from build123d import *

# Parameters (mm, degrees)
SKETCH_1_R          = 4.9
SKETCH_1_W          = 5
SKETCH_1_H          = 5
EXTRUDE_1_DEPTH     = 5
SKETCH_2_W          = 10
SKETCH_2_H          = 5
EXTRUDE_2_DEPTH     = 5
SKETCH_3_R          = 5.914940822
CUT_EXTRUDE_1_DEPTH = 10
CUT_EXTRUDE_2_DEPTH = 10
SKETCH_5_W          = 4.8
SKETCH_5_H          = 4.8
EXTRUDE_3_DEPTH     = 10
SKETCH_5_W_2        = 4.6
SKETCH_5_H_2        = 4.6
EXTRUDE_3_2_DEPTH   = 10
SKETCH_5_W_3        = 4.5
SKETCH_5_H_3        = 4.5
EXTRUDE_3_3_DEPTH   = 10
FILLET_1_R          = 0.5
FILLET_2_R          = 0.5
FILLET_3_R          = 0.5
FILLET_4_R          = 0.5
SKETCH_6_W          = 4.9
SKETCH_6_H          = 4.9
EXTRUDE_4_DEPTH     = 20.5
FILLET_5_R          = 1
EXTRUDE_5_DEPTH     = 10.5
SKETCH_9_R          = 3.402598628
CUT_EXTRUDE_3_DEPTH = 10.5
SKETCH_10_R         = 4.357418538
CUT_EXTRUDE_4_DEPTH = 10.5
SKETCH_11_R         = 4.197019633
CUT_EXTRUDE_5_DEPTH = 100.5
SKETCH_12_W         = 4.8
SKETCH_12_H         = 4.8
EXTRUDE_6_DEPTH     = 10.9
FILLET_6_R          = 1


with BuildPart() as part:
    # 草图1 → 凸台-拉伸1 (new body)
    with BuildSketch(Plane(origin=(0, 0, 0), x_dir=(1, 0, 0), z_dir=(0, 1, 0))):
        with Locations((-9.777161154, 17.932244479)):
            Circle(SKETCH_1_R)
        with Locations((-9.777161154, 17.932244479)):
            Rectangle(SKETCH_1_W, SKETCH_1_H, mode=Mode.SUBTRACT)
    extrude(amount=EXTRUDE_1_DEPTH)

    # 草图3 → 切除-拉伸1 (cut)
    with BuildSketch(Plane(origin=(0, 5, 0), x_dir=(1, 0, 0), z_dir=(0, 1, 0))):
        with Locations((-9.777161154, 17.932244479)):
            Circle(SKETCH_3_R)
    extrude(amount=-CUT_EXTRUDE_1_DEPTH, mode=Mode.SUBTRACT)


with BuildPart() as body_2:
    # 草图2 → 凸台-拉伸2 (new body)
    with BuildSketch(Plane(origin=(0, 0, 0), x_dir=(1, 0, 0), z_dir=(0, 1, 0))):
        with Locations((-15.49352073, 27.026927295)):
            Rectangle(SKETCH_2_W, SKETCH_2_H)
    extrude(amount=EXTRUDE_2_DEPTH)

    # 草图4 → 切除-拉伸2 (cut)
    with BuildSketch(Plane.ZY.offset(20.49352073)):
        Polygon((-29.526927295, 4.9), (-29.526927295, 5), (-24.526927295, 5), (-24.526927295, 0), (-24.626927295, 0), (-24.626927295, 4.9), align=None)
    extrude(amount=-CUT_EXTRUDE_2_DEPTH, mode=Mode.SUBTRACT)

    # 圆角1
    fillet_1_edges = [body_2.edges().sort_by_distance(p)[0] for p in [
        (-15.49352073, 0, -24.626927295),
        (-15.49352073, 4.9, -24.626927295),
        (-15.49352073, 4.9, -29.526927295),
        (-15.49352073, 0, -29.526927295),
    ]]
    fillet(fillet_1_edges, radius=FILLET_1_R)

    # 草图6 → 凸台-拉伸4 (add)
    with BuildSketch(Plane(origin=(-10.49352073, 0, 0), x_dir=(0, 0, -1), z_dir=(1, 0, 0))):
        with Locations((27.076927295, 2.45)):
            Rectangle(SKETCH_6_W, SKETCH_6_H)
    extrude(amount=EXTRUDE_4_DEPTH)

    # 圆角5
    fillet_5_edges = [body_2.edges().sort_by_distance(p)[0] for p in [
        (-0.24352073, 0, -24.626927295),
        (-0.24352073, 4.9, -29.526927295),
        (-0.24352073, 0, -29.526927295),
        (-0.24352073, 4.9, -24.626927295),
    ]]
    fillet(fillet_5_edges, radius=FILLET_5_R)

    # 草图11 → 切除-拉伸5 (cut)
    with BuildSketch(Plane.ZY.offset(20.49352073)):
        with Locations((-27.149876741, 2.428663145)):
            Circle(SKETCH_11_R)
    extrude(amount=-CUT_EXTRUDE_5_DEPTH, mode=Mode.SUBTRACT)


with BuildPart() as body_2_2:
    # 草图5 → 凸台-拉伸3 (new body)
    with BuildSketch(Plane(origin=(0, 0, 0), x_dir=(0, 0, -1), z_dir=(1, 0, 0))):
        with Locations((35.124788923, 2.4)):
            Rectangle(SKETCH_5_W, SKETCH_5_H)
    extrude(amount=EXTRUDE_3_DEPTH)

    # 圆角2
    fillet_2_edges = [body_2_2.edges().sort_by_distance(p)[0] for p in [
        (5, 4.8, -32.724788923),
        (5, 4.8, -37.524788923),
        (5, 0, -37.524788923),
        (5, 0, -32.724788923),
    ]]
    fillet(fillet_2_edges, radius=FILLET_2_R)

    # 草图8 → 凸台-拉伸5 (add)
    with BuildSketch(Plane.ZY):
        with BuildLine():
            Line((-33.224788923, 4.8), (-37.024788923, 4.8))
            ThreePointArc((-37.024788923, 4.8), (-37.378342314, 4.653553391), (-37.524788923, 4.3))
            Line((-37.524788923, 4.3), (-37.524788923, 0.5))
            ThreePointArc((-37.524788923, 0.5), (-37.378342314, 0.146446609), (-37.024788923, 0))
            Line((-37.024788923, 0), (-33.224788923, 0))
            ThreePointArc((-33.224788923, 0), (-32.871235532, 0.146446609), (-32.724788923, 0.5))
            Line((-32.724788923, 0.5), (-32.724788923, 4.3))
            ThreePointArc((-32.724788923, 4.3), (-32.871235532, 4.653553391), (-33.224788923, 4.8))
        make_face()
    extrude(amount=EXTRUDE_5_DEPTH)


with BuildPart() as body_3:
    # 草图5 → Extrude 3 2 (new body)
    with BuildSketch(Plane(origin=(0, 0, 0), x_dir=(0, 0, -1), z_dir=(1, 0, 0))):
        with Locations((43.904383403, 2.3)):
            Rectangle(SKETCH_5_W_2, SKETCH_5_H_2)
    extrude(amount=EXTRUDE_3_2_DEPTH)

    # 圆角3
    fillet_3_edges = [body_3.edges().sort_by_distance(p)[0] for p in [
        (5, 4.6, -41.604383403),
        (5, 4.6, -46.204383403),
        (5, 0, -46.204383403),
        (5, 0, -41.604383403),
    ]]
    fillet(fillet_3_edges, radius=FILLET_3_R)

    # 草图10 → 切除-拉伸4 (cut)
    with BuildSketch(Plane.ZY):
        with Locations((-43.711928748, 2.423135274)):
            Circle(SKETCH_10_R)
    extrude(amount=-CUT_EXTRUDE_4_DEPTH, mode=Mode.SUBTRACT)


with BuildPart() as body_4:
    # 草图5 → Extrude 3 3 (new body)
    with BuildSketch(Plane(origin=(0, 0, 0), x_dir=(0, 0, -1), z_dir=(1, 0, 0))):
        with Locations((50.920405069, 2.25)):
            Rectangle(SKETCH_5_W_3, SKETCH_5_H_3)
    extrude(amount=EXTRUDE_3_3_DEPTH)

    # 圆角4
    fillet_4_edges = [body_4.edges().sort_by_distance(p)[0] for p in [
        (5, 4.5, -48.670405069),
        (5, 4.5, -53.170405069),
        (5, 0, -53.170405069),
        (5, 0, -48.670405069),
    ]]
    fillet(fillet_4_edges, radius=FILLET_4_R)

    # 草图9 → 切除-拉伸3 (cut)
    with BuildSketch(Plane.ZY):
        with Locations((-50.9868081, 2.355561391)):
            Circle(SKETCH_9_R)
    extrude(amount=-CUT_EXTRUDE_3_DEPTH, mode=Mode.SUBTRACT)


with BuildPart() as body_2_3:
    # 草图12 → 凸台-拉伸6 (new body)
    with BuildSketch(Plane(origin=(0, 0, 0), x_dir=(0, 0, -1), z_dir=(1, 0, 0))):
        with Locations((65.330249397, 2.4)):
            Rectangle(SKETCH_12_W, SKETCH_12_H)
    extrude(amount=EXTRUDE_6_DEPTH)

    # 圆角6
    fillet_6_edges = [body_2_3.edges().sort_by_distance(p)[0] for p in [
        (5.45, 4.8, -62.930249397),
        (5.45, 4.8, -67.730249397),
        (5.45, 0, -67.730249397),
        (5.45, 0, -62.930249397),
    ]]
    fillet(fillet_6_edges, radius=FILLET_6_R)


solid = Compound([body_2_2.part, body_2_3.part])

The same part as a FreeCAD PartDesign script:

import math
import FreeCAD as App
import Part
import Sketcher
from FreeCAD import Vector
Q = App.Units.Quantity


def edges_at(feature, points):
    """Names of the edges that pass closest to the given points."""
    edges = feature.Shape.Edges
    near = lambda p: min(range(len(edges)), key=lambda i: edges[i].distToShape(Part.Vertex(*p))[0])
    return sorted({f"Edge{near(p) + 1}" for p in points})


def add_polygon(sketch, points):
    """Adds a closed chain of lines whose ends are joined by coincident constraints."""
    first, n = sketch.GeometryCount, len(points)
    for a, b in zip(points, points[1:] + points[:1]):
        sketch.addGeometry(Part.LineSegment(App.Vector(*a, 0), App.Vector(*b, 0)), False)
    for i in range(n):
        sketch.addConstraint(Sketcher.Constraint("Coincident", first + i, 2, first + (i + 1) % n, 1))

doc = App.newDocument("Part")
body = doc.addObject("PartDesign::Body", "Body")

# Sketch on XZ plane
sketch1 = body.newObject("Sketcher::SketchObject", "Sketch")
sketch1.AttachmentSupport = (doc.getObject("XZ_Plane"), [""])
sketch1.MapMode = "FlatFace"
sketch1.addGeometry(Part.Circle(Vector(-9.8, -17.9, 0), Vector(0, 0, 1), 4.9), False)  # 0
add_polygon(sketch1, [(-7.3, -15.4), (-12.3, -15.4), (-12.3, -20.4), (-7.3, -20.4)])  # lines 1-4
sketch1.addConstraint([
    Sketcher.Constraint("Horizontal", 1),
    Sketcher.Constraint("Vertical", 2),
    Sketcher.Constraint("Horizontal", 3),
    Sketcher.Constraint("Vertical", 4),
    Sketcher.Constraint("Equal", 3, 2),
    Sketcher.Constraint("Diameter", 0, Q("9.8 mm")),
    Sketcher.Constraint("DistanceX", 1, 2, 1, 1, Q("5 mm")),
    Sketcher.Constraint("DistanceX", 1, 2, 0, 3, Q("2.5 mm")),
    Sketcher.Constraint("DistanceY", 0, 3, 1, 2, Q("2.5 mm")),
    Sketcher.Constraint("DistanceX", 0, 3, -1, 1, Q("9.777161 mm")),
    Sketcher.Constraint("DistanceY", 0, 3, -1, 1, Q("17.932244 mm")),
])
pad1 = body.newObject("PartDesign::Pad", "Pad")
pad1.Profile = sketch1
pad1.Length = 5
pad1.Reversed = True

# Sketch on XZ plane
sketch2 = body.newObject("Sketcher::SketchObject", "Sketch001")
sketch2.AttachmentSupport = (doc.getObject("XZ_Plane"), [""])
sketch2.MapMode = "FlatFace"
sketch2.AttachmentOffset = App.Placement(Vector(0, 0, -5), App.Rotation())
sketch2.addGeometry(Part.Circle(Vector(-10, -18, 0), Vector(0, 0, 1), 6), False)
sketch2.addConstraint([
    Sketcher.Constraint("Diameter", 0, Q("11.829882 mm")),
    Sketcher.Constraint("DistanceX", 0, 3, -1, 1, Q("9.777161 mm")),
    Sketcher.Constraint("DistanceY", 0, 3, -1, 1, Q("17.932244 mm")),
])
pocket1 = body.newObject("PartDesign::Pocket", "Pocket")
pocket1.Profile = sketch2
pocket1.Length = 10
pocket1.Reversed = True
body2 = doc.addObject("PartDesign::Body", "Body001")

# Sketch on XZ plane
sketch3 = body2.newObject("Sketcher::SketchObject", "Sketch002")
sketch3.AttachmentSupport = (doc.getObject("XZ_Plane001"), [""])
sketch3.MapMode = "FlatFace"
add_polygon(sketch3, [(-20, -30), (-20, -25), (-10, -25), (-10, -30)])  # lines 0-3
sketch3.addConstraint([
    Sketcher.Constraint("Vertical", 0),
    Sketcher.Constraint("Horizontal", 1),
    Sketcher.Constraint("Vertical", 2),
    Sketcher.Constraint("Horizontal", 3),
    Sketcher.Constraint("DistanceX", 1, 1, 1, 2, Q("10 mm")),
    Sketcher.Constraint("DistanceY", 0, 1, 0, 2, Q("5 mm")),
    Sketcher.Constraint("DistanceX", 0, 2, -1, 1, Q("20.493521 mm")),
    Sketcher.Constraint("DistanceY", 0, 2, -1, 1, Q("24.526927 mm")),
])
pad2 = body2.newObject("PartDesign::Pad", "Pad001")
pad2.Profile = sketch3
pad2.Length = 5
pad2.Reversed = True

# Sketch on YZ plane
sketch4 = body2.newObject("Sketcher::SketchObject", "Sketch003")
sketch4.AttachmentSupport = (doc.getObject("YZ_Plane001"), [""])
sketch4.MapMode = "FlatFace"
sketch4.AttachmentOffset = App.Placement(Vector(0, 0, -20.493521), App.Rotation())
add_polygon(sketch4, [(5, -29.53), (4.9, -29.53), (4.9, -24.63), (0, -24.63), (0, -24.53), (5, -24.53)])  # lines 0-5
sketch4.addConstraint([
    Sketcher.Constraint("Horizontal", 0),
    Sketcher.Constraint("Vertical", 1),
    Sketcher.Constraint("Horizontal", 2),
    Sketcher.Constraint("Vertical", 3),
    Sketcher.Constraint("Horizontal", 4),
    Sketcher.Constraint("Vertical", 5),
    Sketcher.Constraint("PointOnObject", 2, 2, -2),
    Sketcher.Constraint("Equal", 2, 1),
    Sketcher.Constraint("Equal", 0, 3),
    Sketcher.Constraint("DistanceX", 4, 1, 4, 2, Q("5 mm")),
    Sketcher.Constraint("DistanceX", 0, 2, 0, 1, Q("0.1 mm")),
    Sketcher.Constraint("DistanceY", 0, 2, -1, 1, Q("29.526927 mm")),
])
pocket2 = body2.newObject("PartDesign::Pocket", "Pocket001")
pocket2.Profile = sketch4
pocket2.Length = 10
pocket2.Reversed = True
doc.recompute()

fillet = body2.newObject("PartDesign::Fillet", "Fillet")
fillet.Base = (pocket2, edges_at(pocket2, [
    (-15.494, 0, -24.627),
    (-15.494, 4.9, -24.627),
    (-15.494, 4.9, -29.527),
    (-15.494, 0, -29.527),
]))
fillet.Radius = 0.5

# Sketch on YZ plane
sketch5 = body2.newObject("Sketcher::SketchObject", "Sketch004")
sketch5.AttachmentSupport = (doc.getObject("YZ_Plane001"), [""])
sketch5.MapMode = "FlatFace"
sketch5.AttachmentOffset = App.Placement(Vector(0, 0, -10.493521), App.Rotation())
add_polygon(sketch5, [(4.9, -24.6), (0, -24.6), (0, -29.5), (4.9, -29.5)])  # lines 0-3
sketch5.addConstraint([
    Sketcher.Constraint("Horizontal", 0),
    Sketcher.Constraint("Vertical", 1),
    Sketcher.Constraint("Horizontal", 2),
    Sketcher.Constraint("Vertical", 3),
    Sketcher.Constraint("PointOnObject", 0, 2, -2),
    Sketcher.Constraint("Equal", 2, 1),
    Sketcher.Constraint("DistanceX", 0, 2, 0, 1, Q("4.9 mm")),
    Sketcher.Constraint("DistanceY", 0, 2, -1, 1, Q("24.626927 mm")),
])
pad3 = body2.newObject("PartDesign::Pad", "Pad002")
pad3.Profile = sketch5
pad3.Length = 20.5
doc.recompute()

fillet2 = body2.newObject("PartDesign::Fillet", "Fillet001")
fillet2.Base = (pad3, edges_at(pad3, [
    (-0.244, 0, -24.627),
    (-0.244, 4.9, -29.527),
    (-0.244, 0, -29.527),
    (-0.244, 4.9, -24.627),
]))
fillet2.Radius = 1

# Sketch on YZ plane
sketch6 = body2.newObject("Sketcher::SketchObject", "Sketch005")
sketch6.AttachmentSupport = (doc.getObject("YZ_Plane001"), [""])
sketch6.MapMode = "FlatFace"
sketch6.AttachmentOffset = App.Placement(Vector(0, 0, -20.493521), App.Rotation())
sketch6.addGeometry(Part.Circle(Vector(2.4, -27.1, 0), Vector(0, 0, 1), 4.2), False)
sketch6.addConstraint([
    Sketcher.Constraint("Diameter", 0, Q("8.394039 mm")),
    Sketcher.Constraint("DistanceX", -1, 1, 0, 3, Q("2.428663 mm")),
    Sketcher.Constraint("DistanceY", 0, 3, -1, 1, Q("27.149877 mm")),
])
pocket3 = body2.newObject("PartDesign::Pocket", "Pocket002")
pocket3.Profile = sketch6
pocket3.Length = 100.5
pocket3.Reversed = True
body3 = doc.addObject("PartDesign::Body", "Body002")

# Sketch on YZ plane
sketch7 = body3.newObject("Sketcher::SketchObject", "Sketch006")
sketch7.AttachmentSupport = (doc.getObject("YZ_Plane002"), [""])
sketch7.MapMode = "FlatFace"
add_polygon(sketch7, [(4.8, -32.7), (0, -32.7), (0, -37.5), (4.8, -37.5)])  # lines 0-3
sketch7.addConstraint([
    Sketcher.Constraint("Horizontal", 0),
    Sketcher.Constraint("Vertical", 1),
    Sketcher.Constraint("Horizontal", 2),
    Sketcher.Constraint("Vertical", 3),
    Sketcher.Constraint("PointOnObject", 0, 2, -2),
    Sketcher.Constraint("Equal", 2, 1),
    Sketcher.Constraint("DistanceX", 0, 2, 0, 1, Q("4.8 mm")),
    Sketcher.Constraint("DistanceY", 0, 2, -1, 1, Q("32.724789 mm")),
])
pad4 = body3.newObject("PartDesign::Pad", "Pad003")
pad4.Profile = sketch7
pad4.Length = 10
doc.recompute()

fillet3 = body3.newObject("PartDesign::Fillet", "Fillet002")
fillet3.Base = (pad4, edges_at(pad4, [
    (5, 4.8, -32.725),
    (5, 4.8, -37.525),
    (5, 0, -37.525),
    (5, 0, -32.725),
]))
fillet3.Radius = 0.5

# Sketch on YZ plane
sketch8 = body3.newObject("Sketcher::SketchObject", "Sketch007")
sketch8.AttachmentSupport = (doc.getObject("YZ_Plane002"), [""])
sketch8.MapMode = "FlatFace"
sketch8.addGeometry([
    Part.LineSegment(Vector(4.8, -33.22, 0), Vector(4.8, -37.02, 0)),  # 0
    Part.ArcOfCircle(Part.Circle(Vector(4.3, -37.02, 0), Vector(0, 0, 1), 0.5), math.radians(-90), math.radians(0)),  # 1
    Part.LineSegment(Vector(4.3, -37.52, 0), Vector(0.5, -37.52, 0)),  # 2
    Part.ArcOfCircle(Part.Circle(Vector(0.5, -37.02, 0), Vector(0, 0, 1), 0.5), math.radians(180), math.radians(270)),  # 3
    Part.LineSegment(Vector(0, -37.02, 0), Vector(0, -33.22, 0)),  # 4
    Part.ArcOfCircle(Part.Circle(Vector(0.5, -33.22, 0), Vector(0, 0, 1), 0.5), math.radians(90), math.radians(180)),  # 5
    Part.LineSegment(Vector(0.5, -32.72, 0), Vector(4.3, -32.72, 0)),  # 6
    Part.ArcOfCircle(Part.Circle(Vector(4.3, -33.22, 0), Vector(0, 0, 1), 0.5), math.radians(0), math.radians(90)),  # 7
], False)
sketch8.addConstraint([
    Sketcher.Constraint("Tangent", 0, 2, 1, 2),
    Sketcher.Constraint("Tangent", 1, 1, 2, 1),
    Sketcher.Constraint("Tangent", 2, 2, 3, 2),
    Sketcher.Constraint("Tangent", 3, 1, 4, 1),
    Sketcher.Constraint("Tangent", 4, 2, 5, 2),
    Sketcher.Constraint("Tangent", 5, 1, 6, 1),
    Sketcher.Constraint("Tangent", 6, 2, 7, 2),
    Sketcher.Constraint("Tangent", 7, 1, 0, 1),
    Sketcher.Constraint("Vertical", 0),
    Sketcher.Constraint("Horizontal", 2),
    Sketcher.Constraint("Vertical", 4),
    Sketcher.Constraint("Horizontal", 6),
    Sketcher.Constraint("Equal", 1, 3),
    Sketcher.Constraint("Equal", 3, 5),
    Sketcher.Constraint("Equal", 5, 7),
    Sketcher.Constraint("PointOnObject", 3, 1, -2),
    Sketcher.Constraint("Equal", 6, 0),
    Sketcher.Constraint("Radius", 1, Q("0.5 mm")),
    Sketcher.Constraint("DistanceX", 2, 2, 2, 1, Q("3.8 mm")),
    Sketcher.Constraint("DistanceY", 1, 3, -1, 1, Q("37.024789 mm")),
])
pad5 = body3.newObject("PartDesign::Pad", "Pad004")
pad5.Profile = sketch8
pad5.Length = 10.5
pad5.Reversed = True
body4 = doc.addObject("PartDesign::Body", "Body003")

# Sketch on YZ plane
sketch9 = body4.newObject("Sketcher::SketchObject", "Sketch008")
sketch9.AttachmentSupport = (doc.getObject("YZ_Plane003"), [""])
sketch9.MapMode = "FlatFace"
add_polygon(sketch9, [(4.6, -41.6), (0, -41.6), (0, -46.2), (4.6, -46.2)])  # lines 0-3
sketch9.addConstraint([
    Sketcher.Constraint("Horizontal", 0),
    Sketcher.Constraint("Vertical", 1),
    Sketcher.Constraint("Horizontal", 2),
    Sketcher.Constraint("Vertical", 3),
    Sketcher.Constraint("PointOnObject", 0, 2, -2),
    Sketcher.Constraint("Equal", 2, 1),
    Sketcher.Constraint("DistanceX", 0, 2, 0, 1, Q("4.6 mm")),
    Sketcher.Constraint("DistanceY", 0, 2, -1, 1, Q("41.604383 mm")),
])
pad6 = body4.newObject("PartDesign::Pad", "Pad005")
pad6.Profile = sketch9
pad6.Length = 10
doc.recompute()

fillet4 = body4.newObject("PartDesign::Fillet", "Fillet003")
fillet4.Base = (pad6, edges_at(pad6, [
    (5, 4.6, -41.604),
    (5, 4.6, -46.204),
    (5, 0, -46.204),
    (5, 0, -41.604),
]))
fillet4.Radius = 0.5

# Sketch on YZ plane
sketch10 = body4.newObject("Sketcher::SketchObject", "Sketch009")
sketch10.AttachmentSupport = (doc.getObject("YZ_Plane003"), [""])
sketch10.MapMode = "FlatFace"
sketch10.addGeometry(Part.Circle(Vector(2.4, -43.7, 0), Vector(0, 0, 1), 4.4), False)
sketch10.addConstraint([
    Sketcher.Constraint("Diameter", 0, Q("8.714837 mm")),
    Sketcher.Constraint("DistanceY", 0, 3, -1, 1, Q("43.711929 mm")),
    Sketcher.Constraint("DistanceX", -1, 1, 0, 3, Q("2.423135 mm")),
])
pocket4 = body4.newObject("PartDesign::Pocket", "Pocket003")
pocket4.Profile = sketch10
pocket4.Length = 10.5
pocket4.Reversed = True
body5 = doc.addObject("PartDesign::Body", "Body004")

# Sketch on YZ plane
sketch11 = body5.newObject("Sketcher::SketchObject", "Sketch010")
sketch11.AttachmentSupport = (doc.getObject("YZ_Plane004"), [""])
sketch11.MapMode = "FlatFace"
add_polygon(sketch11, [(4.5, -48.7), (0, -48.7), (0, -53.2), (4.5, -53.2)])  # lines 0-3
sketch11.addConstraint([
    Sketcher.Constraint("Horizontal", 0),
    Sketcher.Constraint("Vertical", 1),
    Sketcher.Constraint("Horizontal", 2),
    Sketcher.Constraint("Vertical", 3),
    Sketcher.Constraint("PointOnObject", 0, 2, -2),
    Sketcher.Constraint("Equal", 2, 1),
    Sketcher.Constraint("DistanceX", 0, 2, 0, 1, Q("4.5 mm")),
    Sketcher.Constraint("DistanceY", 0, 2, -1, 1, Q("48.670405 mm")),
])
pad7 = body5.newObject("PartDesign::Pad", "Pad006")
pad7.Profile = sketch11
pad7.Length = 10
doc.recompute()

fillet5 = body5.newObject("PartDesign::Fillet", "Fillet004")
fillet5.Base = (pad7, edges_at(pad7, [
    (5, 4.5, -48.67),
    (5, 4.5, -53.17),
    (5, 0, -53.17),
    (5, 0, -48.67),
]))
fillet5.Radius = 0.5

# Sketch on YZ plane
sketch12 = body5.newObject("Sketcher::SketchObject", "Sketch011")
sketch12.AttachmentSupport = (doc.getObject("YZ_Plane004"), [""])
sketch12.MapMode = "FlatFace"
sketch12.addGeometry(Part.Circle(Vector(2.4, -51, 0), Vector(0, 0, 1), 3.4), False)
sketch12.addConstraint([
    Sketcher.Constraint("Diameter", 0, Q("6.805197 mm")),
    Sketcher.Constraint("DistanceX", -1, 1, 0, 3, Q("2.355561 mm")),
    Sketcher.Constraint("DistanceY", 0, 3, -1, 1, Q("50.986808 mm")),
])
pocket5 = body5.newObject("PartDesign::Pocket", "Pocket004")
pocket5.Profile = sketch12
pocket5.Length = 10.5
pocket5.Reversed = True
body6 = doc.addObject("PartDesign::Body", "Body005")

# Sketch on YZ plane
sketch13 = body6.newObject("Sketcher::SketchObject", "Sketch012")
sketch13.AttachmentSupport = (doc.getObject("YZ_Plane005"), [""])
sketch13.MapMode = "FlatFace"
add_polygon(sketch13, [(4.8, -62.9), (0, -62.9), (0, -67.7), (4.8, -67.7)])  # lines 0-3
sketch13.addConstraint([
    Sketcher.Constraint("Horizontal", 0),
    Sketcher.Constraint("Vertical", 1),
    Sketcher.Constraint("Horizontal", 2),
    Sketcher.Constraint("Vertical", 3),
    Sketcher.Constraint("PointOnObject", 0, 2, -2),
    Sketcher.Constraint("Equal", 2, 1),
    Sketcher.Constraint("DistanceX", 0, 2, 0, 1, Q("4.8 mm")),
    Sketcher.Constraint("DistanceY", 0, 2, -1, 1, Q("62.930249 mm")),
])
pad8 = body6.newObject("PartDesign::Pad", "Pad007")
pad8.Profile = sketch13
pad8.Length = 10.9
doc.recompute()

fillet6 = body6.newObject("PartDesign::Fillet", "Fillet005")
fillet6.Base = (pad8, edges_at(pad8, [
    (5.45, 4.8, -62.93),
    (5.45, 4.8, -67.73),
    (5.45, 0, -67.73),
    (5.45, 0, -62.93),
]))
fillet6.Radius = 1

doc.recompute()
